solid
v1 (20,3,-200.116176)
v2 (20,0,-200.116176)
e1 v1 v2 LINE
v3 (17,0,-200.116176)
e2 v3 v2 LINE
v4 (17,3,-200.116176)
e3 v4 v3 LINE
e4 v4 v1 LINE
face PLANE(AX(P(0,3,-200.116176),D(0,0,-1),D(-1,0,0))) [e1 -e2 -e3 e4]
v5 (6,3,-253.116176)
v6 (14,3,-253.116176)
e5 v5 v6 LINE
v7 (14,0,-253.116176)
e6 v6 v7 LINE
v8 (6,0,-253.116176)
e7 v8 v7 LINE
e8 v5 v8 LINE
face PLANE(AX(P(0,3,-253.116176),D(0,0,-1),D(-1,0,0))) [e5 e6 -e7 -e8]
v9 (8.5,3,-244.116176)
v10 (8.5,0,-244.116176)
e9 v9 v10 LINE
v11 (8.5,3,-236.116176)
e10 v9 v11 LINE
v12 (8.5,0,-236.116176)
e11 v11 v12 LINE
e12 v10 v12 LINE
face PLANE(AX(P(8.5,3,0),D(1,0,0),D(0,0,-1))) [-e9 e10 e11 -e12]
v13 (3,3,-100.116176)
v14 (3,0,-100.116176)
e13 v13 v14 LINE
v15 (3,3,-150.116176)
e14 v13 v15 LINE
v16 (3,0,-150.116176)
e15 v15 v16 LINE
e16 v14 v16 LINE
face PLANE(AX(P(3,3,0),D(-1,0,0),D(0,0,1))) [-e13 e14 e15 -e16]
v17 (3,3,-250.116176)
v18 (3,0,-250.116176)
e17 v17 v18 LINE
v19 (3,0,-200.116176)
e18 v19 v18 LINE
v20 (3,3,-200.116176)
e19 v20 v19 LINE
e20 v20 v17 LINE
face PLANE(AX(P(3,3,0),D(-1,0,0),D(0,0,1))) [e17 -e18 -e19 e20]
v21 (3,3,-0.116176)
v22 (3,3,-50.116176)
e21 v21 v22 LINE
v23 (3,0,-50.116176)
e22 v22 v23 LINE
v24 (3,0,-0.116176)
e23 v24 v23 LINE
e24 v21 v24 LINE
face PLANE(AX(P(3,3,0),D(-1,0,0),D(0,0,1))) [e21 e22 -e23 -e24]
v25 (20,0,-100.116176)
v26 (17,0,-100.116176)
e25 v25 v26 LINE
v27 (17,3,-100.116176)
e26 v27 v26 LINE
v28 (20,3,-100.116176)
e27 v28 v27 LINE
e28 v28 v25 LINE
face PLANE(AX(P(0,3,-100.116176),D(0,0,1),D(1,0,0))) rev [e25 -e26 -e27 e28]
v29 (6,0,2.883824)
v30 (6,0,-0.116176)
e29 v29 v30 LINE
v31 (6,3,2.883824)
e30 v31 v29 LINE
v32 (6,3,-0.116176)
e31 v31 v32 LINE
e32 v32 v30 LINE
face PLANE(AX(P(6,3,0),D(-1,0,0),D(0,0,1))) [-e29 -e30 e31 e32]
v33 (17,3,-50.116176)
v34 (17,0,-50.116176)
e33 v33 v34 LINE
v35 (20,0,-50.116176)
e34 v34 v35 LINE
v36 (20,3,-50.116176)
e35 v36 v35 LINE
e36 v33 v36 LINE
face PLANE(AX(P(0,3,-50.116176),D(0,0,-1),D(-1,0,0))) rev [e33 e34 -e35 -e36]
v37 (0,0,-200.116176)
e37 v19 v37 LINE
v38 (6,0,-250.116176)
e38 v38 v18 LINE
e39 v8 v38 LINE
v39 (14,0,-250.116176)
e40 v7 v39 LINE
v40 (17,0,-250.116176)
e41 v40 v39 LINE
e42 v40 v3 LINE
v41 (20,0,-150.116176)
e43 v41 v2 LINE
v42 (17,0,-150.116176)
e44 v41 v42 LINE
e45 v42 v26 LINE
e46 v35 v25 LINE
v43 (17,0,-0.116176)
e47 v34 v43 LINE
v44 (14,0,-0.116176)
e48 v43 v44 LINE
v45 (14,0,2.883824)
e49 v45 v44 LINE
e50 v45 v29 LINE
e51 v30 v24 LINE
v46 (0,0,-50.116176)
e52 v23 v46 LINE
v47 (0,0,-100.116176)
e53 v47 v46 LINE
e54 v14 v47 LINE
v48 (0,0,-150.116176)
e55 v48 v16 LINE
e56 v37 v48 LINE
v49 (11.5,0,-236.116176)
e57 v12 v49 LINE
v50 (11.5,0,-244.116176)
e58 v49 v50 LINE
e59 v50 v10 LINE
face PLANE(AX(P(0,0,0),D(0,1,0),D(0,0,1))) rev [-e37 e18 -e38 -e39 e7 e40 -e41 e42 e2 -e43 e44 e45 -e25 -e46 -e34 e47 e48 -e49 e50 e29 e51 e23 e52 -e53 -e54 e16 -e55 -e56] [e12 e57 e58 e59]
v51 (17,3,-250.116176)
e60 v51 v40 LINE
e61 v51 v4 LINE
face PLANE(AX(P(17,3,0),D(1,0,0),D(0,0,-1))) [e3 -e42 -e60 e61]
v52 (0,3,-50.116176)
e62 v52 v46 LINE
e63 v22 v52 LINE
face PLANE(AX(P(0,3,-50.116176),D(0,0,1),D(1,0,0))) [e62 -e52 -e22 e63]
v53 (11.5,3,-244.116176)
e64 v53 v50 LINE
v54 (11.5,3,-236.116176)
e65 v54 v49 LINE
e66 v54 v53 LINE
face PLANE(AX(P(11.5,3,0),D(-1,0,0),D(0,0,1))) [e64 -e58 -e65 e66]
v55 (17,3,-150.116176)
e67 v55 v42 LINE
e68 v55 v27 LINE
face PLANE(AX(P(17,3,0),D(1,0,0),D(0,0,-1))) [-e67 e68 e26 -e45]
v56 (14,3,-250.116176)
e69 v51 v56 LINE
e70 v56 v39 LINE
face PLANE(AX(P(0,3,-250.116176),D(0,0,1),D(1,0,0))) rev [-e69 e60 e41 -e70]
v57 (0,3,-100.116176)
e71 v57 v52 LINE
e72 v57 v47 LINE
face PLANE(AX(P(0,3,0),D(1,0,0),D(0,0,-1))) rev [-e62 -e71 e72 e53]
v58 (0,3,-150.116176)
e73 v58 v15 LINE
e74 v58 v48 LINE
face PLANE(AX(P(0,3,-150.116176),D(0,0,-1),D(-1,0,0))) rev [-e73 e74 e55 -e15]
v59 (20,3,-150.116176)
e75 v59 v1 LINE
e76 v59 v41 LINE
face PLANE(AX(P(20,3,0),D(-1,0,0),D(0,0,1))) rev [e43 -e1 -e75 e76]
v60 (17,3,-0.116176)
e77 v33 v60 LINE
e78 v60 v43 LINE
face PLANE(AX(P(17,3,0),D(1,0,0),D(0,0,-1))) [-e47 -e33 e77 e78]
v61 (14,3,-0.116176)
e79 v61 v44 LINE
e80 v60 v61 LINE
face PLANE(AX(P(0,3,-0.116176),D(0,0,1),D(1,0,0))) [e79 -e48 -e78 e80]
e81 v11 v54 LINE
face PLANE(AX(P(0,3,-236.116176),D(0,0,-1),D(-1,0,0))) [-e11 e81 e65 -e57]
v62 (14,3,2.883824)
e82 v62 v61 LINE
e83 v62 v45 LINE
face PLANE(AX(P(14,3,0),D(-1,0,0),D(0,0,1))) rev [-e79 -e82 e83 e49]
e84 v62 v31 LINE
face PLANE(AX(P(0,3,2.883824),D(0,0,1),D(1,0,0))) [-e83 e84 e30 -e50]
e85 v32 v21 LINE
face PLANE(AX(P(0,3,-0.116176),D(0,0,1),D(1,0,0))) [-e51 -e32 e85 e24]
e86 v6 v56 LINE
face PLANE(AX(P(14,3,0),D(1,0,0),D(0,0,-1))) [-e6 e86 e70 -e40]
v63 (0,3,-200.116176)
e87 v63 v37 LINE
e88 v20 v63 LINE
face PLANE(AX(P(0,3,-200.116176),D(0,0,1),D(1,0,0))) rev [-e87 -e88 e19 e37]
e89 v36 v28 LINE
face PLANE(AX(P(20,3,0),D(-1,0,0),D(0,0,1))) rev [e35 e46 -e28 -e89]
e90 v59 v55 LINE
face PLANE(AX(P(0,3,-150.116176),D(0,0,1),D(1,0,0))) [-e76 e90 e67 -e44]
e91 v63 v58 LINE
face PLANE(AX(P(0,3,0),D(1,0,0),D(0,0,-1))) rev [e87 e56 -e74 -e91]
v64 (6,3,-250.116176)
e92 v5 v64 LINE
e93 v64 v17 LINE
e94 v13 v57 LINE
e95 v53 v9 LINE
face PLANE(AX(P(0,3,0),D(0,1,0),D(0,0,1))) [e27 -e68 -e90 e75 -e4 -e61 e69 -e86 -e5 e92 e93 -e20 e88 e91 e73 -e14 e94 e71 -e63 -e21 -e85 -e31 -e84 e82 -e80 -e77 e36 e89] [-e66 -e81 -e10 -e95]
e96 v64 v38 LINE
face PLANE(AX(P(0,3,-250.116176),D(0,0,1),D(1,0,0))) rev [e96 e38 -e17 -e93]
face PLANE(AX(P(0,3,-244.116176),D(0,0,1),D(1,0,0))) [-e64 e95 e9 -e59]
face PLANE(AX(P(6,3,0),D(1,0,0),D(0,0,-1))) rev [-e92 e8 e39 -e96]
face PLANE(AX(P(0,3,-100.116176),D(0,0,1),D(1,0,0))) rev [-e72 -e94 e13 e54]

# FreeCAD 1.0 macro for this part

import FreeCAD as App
import Part
import Sketcher
from FreeCAD import Vector

doc = App.newDocument("Part")
body = doc.addObject("PartDesign::Body", "Body")

# Sketch on XZ plane
sketch1 = body.newObject("Sketcher::SketchObject", "Sketch")
sketch1.AttachmentSupport = (doc.getObject("XZ_Plane"), [""])
sketch1.MapMode = "FlatFace"
sketch1.addGeometry([
    Part.LineSegment(Vector(14, -253.1, 0), Vector(6, -253.1, 0)),  # 0
    Part.LineSegment(Vector(6, -253.1, 0), Vector(6, -250.1, 0)),  # 1
    Part.LineSegment(Vector(6, -250.1, 0), Vector(3, -250.1, 0)),  # 2
    Part.LineSegment(Vector(3, -250.1, 0), Vector(3, -200.1, 0)),  # 3
    Part.LineSegment(Vector(3, -200.1, 0), Vector(0, -200.1, 0)),  # 4
    Part.LineSegment(Vector(0, -200.1, 0), Vector(0, -150.1, 0)),  # 5
    Part.LineSegment(Vector(0, -150.1, 0), Vector(3, -150.1, 0)),  # 6
    Part.LineSegment(Vector(3, -150.1, 0), Vector(3, -100.1, 0)),  # 7
    Part.LineSegment(Vector(3, -100.1, 0), Vector(0, -100.1, 0)),  # 8
    Part.LineSegment(Vector(0, -100.1, 0), Vector(0, -50.1, 0)),  # 9
    Part.LineSegment(Vector(0, -50.1, 0), Vector(3, -50.1, 0)),  # 10
    Part.LineSegment(Vector(3, -50.1, 0), Vector(3, -0.1, 0)),  # 11
    Part.LineSegment(Vector(3, -0.1, 0), Vector(6, -0.1, 0)),  # 12
    Part.LineSegment(Vector(6, -0.1, 0), Vector(6, 2.9, 0)),  # 13
    Part.LineSegment(Vector(6, 2.9, 0), Vector(14, 2.9, 0)),  # 14
    Part.LineSegment(Vector(14, 2.9, 0), Vector(14, -0.1, 0)),  # 15
    Part.LineSegment(Vector(14, -0.1, 0), Vector(17, -0.1, 0)),  # 16
    Part.LineSegment(Vector(17, -0.1, 0), Vector(17, -50.1, 0)),  # 17
    Part.LineSegment(Vector(17, -50.1, 0), Vector(20, -50.1, 0)),  # 18
    Part.LineSegment(Vector(20, -50.1, 0), Vector(20, -100.1, 0)),  # 19
    Part.LineSegment(Vector(20, -100.1, 0), Vector(17, -100.1, 0)),  # 20
    Part.LineSegment(Vector(17, -100.1, 0), Vector(17, -150.1, 0)),  # 21
    Part.LineSegment(Vector(17, -150.1, 0), Vector(20, -150.1, 0)),  # 22
    Part.LineSegment(Vector(20, -150.1, 0), Vector(20, -200.1, 0)),  # 23
    Part.LineSegment(Vector(20, -200.1, 0), Vector(17, -200.1, 0)),  # 24
    Part.LineSegment(Vector(17, -200.1, 0), Vector(17, -250.1, 0)),  # 25
    Part.LineSegment(Vector(17, -250.1, 0), Vector(14, -250.1, 0)),  # 26
    Part.LineSegment(Vector(14, -250.1, 0), Vector(14, -253.1, 0)),  # 27
    Part.LineSegment(Vector(8.5, -236.1, 0), Vector(8.5, -244.1, 0)),  # 28
    Part.LineSegment(Vector(8.5, -244.1, 0), Vector(11.5, -244.1, 0)),  # 29
    Part.LineSegment(Vector(11.5, -244.1, 0), Vector(11.5, -236.1, 0)),  # 30
    Part.LineSegment(Vector(11.5, -236.1, 0), Vector(8.5, -236.1, 0)),  # 31
], False)
sketch1.addConstraint([
    Sketcher.Constraint("Coincident", 0, 2, 1, 1),
    Sketcher.Constraint("Coincident", 1, 2, 2, 1),
    Sketcher.Constraint("Coincident", 2, 2, 3, 1),
    Sketcher.Constraint("Coincident", 3, 2, 4, 1),
    Sketcher.Constraint("Coincident", 4, 2, 5, 1),
    Sketcher.Constraint("Coincident", 5, 2, 6, 1),
    Sketcher.Constraint("Coincident", 6, 2, 7, 1),
    Sketcher.Constraint("Coincident", 7, 2, 8, 1),
    Sketcher.Constraint("Coincident", 8, 2, 9, 1),
    Sketcher.Constraint("Coincident", 9, 2, 10, 1),
    Sketcher.Constraint("Coincident", 10, 2, 11, 1),
    Sketcher.Constraint("Coincident", 11, 2, 12, 1),
    Sketcher.Constraint("Coincident", 12, 2, 13, 1),
    Sketcher.Constraint("Coincident", 13, 2, 14, 1),
    Sketcher.Constraint("Coincident", 14, 2, 15, 1),
    Sketcher.Constraint("Coincident", 15, 2, 16, 1),
    Sketcher.Constraint("Coincident", 16, 2, 17, 1),
    Sketcher.Constraint("Coincident", 17, 2, 18, 1),
    Sketcher.Constraint("Coincident", 18, 2, 19, 1),
    Sketcher.Constraint("Coincident", 19, 2, 20, 1),
    Sketcher.Constraint("Coincident", 20, 2, 21, 1),
    Sketcher.Constraint("Coincident", 21, 2, 22, 1),
    Sketcher.Constraint("Coincident", 22, 2, 23, 1),
    Sketcher.Constraint("Coincident", 23, 2, 24, 1),
    Sketcher.Constraint("Coincident", 24, 2, 25, 1),
    Sketcher.Constraint("Coincident", 25, 2, 26, 1),
    Sketcher.Constraint("Coincident", 26, 2, 27, 1),
    Sketcher.Constraint("Coincident", 27, 2, 0, 1),
    Sketcher.Constraint("Coincident", 28, 2, 29, 1),
    Sketcher.Constraint("Coincident", 29, 2, 30, 1),
    Sketcher.Constraint("Coincident", 30, 2, 31, 1),
    Sketcher.Constraint("Coincident", 31, 2, 28, 1),
    Sketcher.Constraint("Horizontal", 0),
    Sketcher.Constraint("Vertical", 1),
    Sketcher.Constraint("Horizontal", 2),
    Sketcher.Constraint("Vertical", 3),
    Sketcher.Constraint("Horizontal", 4),
    Sketcher.Constraint("Vertical", 5),
    Sketcher.Constraint("Horizontal", 6),
    Sketcher.Constraint("Vertical", 7),
    Sketcher.Constraint("Horizontal", 8),
    Sketcher.Constraint("Vertical", 9),
    Sketcher.Constraint("Horizontal", 10),
    Sketcher.Constraint("Vertical", 11),
    Sketcher.Constraint("Horizontal", 12),
    Sketcher.Constraint("Vertical", 13),
    Sketcher.Constraint("Horizontal", 14),
    Sketcher.Constraint("Vertical", 15),
    Sketcher.Constraint("Horizontal", 16),
    Sketcher.Constraint("Vertical", 17),
    Sketcher.Constraint("Horizontal", 18),
    Sketcher.Constraint("Vertical", 19),
    Sketcher.Constraint("Horizontal", 20),
    Sketcher.Constraint("Vertical", 21),
    Sketcher.Constraint("Horizontal", 22),
    Sketcher.Constraint("Vertical", 23),
    Sketcher.Constraint("Horizontal", 24),
    Sketcher.Constraint("Vertical", 25),
    Sketcher.Constraint("Horizontal", 26),
    Sketcher.Constraint("Vertical", 27),
    Sketcher.Constraint("Vertical", 28),
    Sketcher.Constraint("Horizontal", 29),
    Sketcher.Constraint("Vertical", 30),
    Sketcher.Constraint("Horizontal", 31),
    Sketcher.Constraint("PointOnObject", 4, 2, -2),
    Sketcher.Constraint("PointOnObject", 8, 2, -2),
    Sketcher.Constraint("Horizontal", 12, 2, 15, 2),
    Sketcher.Constraint("Horizontal", 10, 2, 17, 2),
    Sketcher.Constraint("Horizontal", 8, 2, 19, 2),
    Sketcher.Constraint("Horizontal", 6, 2, 21, 2),
    Sketcher.Constraint("Horizontal", 4, 2, 23, 2),
    Sketcher.Constraint("Horizontal", 2, 2, 25, 2),
    Sketcher.Constraint("Vertical", 3, 2, 6, 2),
    Sketcher.Constraint("Vertical", 7, 2, 10, 2),
    Sketcher.Constraint("Vertical", 1, 2, 12, 2),
    Sketcher.Constraint("Vertical", 17, 2, 20, 2),
    Sketcher.Constraint("Vertical", 19, 2, 22, 2),
    Sketcher.Constraint("Vertical", 21, 2, 24, 2),
    Sketcher.Constraint("Vertical", 15, 2, 26, 2),
    Sketcher.Constraint("Equal", 2, 4),
    Sketcher.Constraint("Equal", 12, 16),
    Sketcher.Constraint("Equal", 16, 18),
    Sketcher.Constraint("Equal", 26, 29),
    Sketcher.Constraint("Equal", 31, 1),
    Sketcher.Constraint("Equal", 3, 5),
    Sketcher.Constraint("Equal", 5, 7),
    Sketcher.Constraint("Equal", 7, 9),
    Sketcher.Constraint("Equal", 9, 11),
    Sketcher.Constraint("Equal", 1, 13),
    Sketcher.Constraint("Equal", 14, 28),
    Sketcher.Constraint("DistanceX", 0, 2, 0, 1, 8.0),
    Sketcher.Constraint("DistanceX", 2, 2, 2, 1, 3.0),
    Sketcher.Constraint("DistanceY", 3, 1, 3, 2, 50.0),
    Sketcher.Constraint("DistanceY", 1, 2, 28, 2, 6.0),
    Sketcher.Constraint("DistanceX", -1, 1, 28, 2, 8.5),
    Sketcher.Constraint("DistanceY", 0, 2, -1, 1, 253.116176),
])
pad1 = body.newObject("PartDesign::Pad", "Pad")
pad1.Profile = sketch1
pad1.Length = 3
pad1.Reversed = True

doc.recompute()
